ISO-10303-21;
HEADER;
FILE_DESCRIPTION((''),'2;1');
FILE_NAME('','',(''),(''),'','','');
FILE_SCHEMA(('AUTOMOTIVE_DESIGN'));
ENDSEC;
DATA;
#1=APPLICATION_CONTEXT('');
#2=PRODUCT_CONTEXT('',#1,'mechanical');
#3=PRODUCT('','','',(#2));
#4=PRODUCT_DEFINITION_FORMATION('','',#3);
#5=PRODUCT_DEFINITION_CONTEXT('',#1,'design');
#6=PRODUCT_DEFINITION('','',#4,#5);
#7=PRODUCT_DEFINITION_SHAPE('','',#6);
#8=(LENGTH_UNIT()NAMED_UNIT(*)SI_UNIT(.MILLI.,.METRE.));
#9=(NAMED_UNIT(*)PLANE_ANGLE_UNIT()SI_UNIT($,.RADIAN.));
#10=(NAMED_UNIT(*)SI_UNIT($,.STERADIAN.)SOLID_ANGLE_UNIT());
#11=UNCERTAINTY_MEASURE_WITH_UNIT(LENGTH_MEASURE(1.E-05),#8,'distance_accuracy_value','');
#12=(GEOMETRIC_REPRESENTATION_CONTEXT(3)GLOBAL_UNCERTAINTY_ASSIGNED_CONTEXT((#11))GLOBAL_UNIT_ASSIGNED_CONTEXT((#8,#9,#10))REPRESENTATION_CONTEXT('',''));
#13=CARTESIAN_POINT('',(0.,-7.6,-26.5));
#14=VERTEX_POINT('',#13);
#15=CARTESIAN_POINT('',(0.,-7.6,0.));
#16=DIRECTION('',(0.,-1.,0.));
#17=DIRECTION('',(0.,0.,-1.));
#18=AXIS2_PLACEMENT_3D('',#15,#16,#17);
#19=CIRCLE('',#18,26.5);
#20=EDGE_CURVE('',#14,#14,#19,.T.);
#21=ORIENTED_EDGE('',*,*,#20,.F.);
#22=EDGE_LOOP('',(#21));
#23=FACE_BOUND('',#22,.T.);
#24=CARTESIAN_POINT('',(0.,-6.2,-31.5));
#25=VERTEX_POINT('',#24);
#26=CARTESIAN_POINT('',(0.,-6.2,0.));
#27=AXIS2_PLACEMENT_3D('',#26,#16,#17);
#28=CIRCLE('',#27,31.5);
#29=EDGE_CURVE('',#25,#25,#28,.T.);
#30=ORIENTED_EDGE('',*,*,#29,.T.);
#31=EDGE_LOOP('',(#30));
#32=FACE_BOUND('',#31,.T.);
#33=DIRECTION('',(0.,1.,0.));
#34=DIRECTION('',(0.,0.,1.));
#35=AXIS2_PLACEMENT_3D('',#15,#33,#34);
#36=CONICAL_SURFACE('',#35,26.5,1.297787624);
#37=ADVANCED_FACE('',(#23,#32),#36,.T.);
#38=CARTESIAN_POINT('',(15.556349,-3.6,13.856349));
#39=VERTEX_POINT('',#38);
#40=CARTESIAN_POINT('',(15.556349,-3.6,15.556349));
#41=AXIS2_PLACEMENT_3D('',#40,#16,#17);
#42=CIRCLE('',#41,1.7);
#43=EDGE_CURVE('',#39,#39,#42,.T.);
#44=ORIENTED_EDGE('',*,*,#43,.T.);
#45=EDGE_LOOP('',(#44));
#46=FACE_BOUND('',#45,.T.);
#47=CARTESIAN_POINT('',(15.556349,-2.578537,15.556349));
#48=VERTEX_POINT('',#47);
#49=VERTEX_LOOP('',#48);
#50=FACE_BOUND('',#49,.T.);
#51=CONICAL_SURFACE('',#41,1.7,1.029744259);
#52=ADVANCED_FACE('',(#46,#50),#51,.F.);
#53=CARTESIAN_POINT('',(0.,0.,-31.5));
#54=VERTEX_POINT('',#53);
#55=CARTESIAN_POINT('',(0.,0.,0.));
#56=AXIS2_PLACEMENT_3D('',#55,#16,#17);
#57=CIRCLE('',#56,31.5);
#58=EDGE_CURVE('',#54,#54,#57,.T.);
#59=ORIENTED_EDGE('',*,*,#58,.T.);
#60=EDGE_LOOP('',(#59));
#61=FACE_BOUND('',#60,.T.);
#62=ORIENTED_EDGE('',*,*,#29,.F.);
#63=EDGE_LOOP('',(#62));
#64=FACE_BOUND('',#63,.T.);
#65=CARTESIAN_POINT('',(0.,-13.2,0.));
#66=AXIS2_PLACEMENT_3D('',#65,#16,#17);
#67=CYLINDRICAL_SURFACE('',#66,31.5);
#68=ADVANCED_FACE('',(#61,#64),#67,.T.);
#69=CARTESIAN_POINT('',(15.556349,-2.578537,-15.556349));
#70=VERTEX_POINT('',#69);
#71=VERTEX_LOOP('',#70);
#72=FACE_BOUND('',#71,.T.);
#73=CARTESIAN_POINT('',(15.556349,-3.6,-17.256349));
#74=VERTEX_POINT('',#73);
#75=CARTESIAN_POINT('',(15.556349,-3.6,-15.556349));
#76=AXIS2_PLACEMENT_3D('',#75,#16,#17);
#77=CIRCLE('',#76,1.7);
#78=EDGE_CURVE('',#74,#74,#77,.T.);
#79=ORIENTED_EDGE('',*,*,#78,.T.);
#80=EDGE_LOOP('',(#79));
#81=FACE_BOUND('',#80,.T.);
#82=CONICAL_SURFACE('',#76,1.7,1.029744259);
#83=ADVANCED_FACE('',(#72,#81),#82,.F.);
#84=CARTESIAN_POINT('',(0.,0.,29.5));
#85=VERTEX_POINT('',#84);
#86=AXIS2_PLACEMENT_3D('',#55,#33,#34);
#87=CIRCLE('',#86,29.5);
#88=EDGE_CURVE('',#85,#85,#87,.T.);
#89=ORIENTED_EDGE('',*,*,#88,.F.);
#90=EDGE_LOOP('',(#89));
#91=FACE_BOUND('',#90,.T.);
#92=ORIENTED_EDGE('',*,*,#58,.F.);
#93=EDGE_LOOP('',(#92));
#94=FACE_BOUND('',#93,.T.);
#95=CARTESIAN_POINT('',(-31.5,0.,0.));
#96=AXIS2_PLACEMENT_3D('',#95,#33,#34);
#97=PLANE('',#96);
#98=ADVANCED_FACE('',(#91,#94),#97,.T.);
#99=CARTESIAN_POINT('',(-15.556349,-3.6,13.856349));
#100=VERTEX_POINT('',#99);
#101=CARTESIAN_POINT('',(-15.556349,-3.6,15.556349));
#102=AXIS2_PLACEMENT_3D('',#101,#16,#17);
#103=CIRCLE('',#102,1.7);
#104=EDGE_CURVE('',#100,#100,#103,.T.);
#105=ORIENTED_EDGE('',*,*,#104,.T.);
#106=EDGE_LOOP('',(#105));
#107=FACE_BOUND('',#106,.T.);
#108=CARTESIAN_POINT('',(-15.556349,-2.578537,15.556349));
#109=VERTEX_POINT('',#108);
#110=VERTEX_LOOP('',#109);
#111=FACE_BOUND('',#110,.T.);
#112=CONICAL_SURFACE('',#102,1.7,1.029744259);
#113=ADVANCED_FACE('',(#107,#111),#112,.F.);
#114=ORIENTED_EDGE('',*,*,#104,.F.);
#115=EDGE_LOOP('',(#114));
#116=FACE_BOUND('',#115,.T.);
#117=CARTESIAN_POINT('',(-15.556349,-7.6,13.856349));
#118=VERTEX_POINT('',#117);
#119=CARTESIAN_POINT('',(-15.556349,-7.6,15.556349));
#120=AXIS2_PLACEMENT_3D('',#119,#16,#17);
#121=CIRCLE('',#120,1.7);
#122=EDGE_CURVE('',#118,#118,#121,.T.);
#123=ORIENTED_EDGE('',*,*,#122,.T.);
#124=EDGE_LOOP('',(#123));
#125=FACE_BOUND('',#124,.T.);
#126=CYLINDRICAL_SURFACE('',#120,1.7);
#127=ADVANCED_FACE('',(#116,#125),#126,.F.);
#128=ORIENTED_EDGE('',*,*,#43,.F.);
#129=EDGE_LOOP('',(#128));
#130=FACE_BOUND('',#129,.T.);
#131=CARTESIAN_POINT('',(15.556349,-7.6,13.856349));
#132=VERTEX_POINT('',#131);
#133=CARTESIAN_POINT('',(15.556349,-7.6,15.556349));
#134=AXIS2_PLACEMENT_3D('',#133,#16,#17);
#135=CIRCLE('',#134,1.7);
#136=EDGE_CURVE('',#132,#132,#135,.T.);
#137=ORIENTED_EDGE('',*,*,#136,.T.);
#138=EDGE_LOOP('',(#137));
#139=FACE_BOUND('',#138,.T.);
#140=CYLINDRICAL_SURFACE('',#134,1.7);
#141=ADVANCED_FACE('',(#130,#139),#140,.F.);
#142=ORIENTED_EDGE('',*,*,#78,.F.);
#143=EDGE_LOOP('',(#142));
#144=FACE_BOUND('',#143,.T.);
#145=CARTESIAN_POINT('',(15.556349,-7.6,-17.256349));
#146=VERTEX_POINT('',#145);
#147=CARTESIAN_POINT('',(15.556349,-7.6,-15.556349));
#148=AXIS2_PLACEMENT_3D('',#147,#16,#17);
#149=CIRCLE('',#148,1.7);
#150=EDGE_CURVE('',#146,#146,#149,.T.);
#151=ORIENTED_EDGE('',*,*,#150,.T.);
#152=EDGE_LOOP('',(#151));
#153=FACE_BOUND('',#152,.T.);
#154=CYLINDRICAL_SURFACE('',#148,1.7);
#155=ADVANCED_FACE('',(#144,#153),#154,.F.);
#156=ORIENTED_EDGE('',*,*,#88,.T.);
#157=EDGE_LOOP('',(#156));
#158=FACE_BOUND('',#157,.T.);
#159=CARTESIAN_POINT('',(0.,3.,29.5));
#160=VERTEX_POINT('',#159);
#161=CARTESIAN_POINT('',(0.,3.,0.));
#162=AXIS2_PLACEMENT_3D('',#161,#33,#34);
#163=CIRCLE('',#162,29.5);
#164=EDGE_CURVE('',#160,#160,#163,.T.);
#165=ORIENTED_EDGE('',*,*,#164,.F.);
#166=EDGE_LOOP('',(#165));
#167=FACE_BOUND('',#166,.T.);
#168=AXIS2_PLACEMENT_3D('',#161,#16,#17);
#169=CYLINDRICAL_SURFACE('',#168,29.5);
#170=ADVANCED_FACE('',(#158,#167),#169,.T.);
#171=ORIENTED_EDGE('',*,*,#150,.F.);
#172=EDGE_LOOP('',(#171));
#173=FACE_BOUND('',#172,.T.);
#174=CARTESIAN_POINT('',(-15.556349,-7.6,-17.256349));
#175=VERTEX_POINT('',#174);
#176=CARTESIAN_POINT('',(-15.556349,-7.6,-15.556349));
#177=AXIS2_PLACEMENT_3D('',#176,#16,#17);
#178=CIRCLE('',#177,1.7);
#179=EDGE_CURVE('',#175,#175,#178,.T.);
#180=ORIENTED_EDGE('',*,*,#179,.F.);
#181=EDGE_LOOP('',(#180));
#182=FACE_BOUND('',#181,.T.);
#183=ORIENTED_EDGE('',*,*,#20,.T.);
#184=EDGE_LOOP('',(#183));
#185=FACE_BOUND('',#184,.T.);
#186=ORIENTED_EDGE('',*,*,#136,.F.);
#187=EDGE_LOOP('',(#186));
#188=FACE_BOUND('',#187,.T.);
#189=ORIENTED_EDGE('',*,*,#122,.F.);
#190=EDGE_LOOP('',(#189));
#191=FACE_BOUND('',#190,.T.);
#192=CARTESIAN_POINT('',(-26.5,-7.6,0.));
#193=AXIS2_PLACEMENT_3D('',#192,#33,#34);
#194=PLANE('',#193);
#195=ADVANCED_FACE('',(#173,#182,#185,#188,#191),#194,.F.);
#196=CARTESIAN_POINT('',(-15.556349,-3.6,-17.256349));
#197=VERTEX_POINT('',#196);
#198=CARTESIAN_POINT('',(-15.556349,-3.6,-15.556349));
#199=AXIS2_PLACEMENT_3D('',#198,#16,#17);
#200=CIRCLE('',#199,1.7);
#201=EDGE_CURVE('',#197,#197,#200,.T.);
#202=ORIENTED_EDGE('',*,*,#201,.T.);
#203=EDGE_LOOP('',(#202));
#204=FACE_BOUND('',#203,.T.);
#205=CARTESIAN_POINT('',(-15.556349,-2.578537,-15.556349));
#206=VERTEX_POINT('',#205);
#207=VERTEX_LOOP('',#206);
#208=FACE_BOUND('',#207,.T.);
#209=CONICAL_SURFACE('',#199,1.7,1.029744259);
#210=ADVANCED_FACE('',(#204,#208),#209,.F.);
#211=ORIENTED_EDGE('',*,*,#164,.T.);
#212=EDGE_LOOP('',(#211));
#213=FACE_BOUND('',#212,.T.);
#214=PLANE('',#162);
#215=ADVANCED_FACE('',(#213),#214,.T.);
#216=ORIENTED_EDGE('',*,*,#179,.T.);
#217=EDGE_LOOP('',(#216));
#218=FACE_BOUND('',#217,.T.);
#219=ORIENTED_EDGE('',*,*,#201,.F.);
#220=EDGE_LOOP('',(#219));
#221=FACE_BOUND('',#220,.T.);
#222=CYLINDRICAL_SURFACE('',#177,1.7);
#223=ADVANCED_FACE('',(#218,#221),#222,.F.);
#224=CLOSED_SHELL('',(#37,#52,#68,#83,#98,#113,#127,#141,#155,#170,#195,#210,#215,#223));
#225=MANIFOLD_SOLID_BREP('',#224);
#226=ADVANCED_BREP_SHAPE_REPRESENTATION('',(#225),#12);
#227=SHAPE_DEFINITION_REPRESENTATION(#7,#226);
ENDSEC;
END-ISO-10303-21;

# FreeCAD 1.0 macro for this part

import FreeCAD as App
import Part
import Sketcher
Q = App.Units.Quantity


def add_polygon(sketch, points):
    """Adds a closed chain of lines whose ends are joined by coincident constraints."""
    first, n = sketch.GeometryCount, len(points)
    for a, b in zip(points, points[1:] + points[:1]):
        sketch.addGeometry(Part.LineSegment(App.Vector(*a, 0), App.Vector(*b, 0)), False)
    for i in range(n):
        sketch.addConstraint(Sketcher.Constraint("Coincident", first + i, 2, first + (i + 1) % n, 1))

doc = App.newDocument("Part")
body = doc.addObject("PartDesign::Body", "Body")

# Sketch on XY plane
sketch1 = body.newObject("Sketcher::SketchObject", "Sketch")
sketch1.AttachmentSupport = (doc.getObject("XY_Plane"), [""])
sketch1.MapMode = "FlatFace"
add_polygon(sketch1, [(-31.5, -6.2), (-26.5, -7.6), (0, -7.6), (0, 0), (-31.5, 0)])  # lines 0-4
sketch1.addConstraint(Sketcher.Constraint("Horizontal", 1))
sketch1.addConstraint(Sketcher.Constraint("Vertical", 2))
sketch1.addConstraint(Sketcher.Constraint("Horizontal", 3))
sketch1.addConstraint(Sketcher.Constraint("Vertical", 4))
sketch1.addConstraint(Sketcher.Constraint("Coincident", 2, 2, -1, 1))
sketch1.addConstraint(Sketcher.Constraint("DistanceX", 1, 1, 1, 2, Q("26.5 mm")))
sketch1.addConstraint(Sketcher.Constraint("DistanceX", 3, 2, 3, 1, Q("31.5 mm")))
sketch1.addConstraint(Sketcher.Constraint("DistanceY", 2, 1, 2, 2, Q("7.6 mm")))
sketch1.addConstraint(Sketcher.Constraint("DistanceY", 4, 2, 4, 1, Q("6.2 mm")))
revolution = body.newObject("PartDesign::Revolution", "Revolution")
revolution.Profile = sketch1
revolution.ReferenceAxis = (sketch1, ["V_Axis"])
revolution.Angle = 360

# Sketch on XZ plane
sketch2 = body.newObject("Sketcher::SketchObject", "Sketch001")
sketch2.AttachmentSupport = (doc.getObject("XZ_Plane"), [""])
sketch2.MapMode = "FlatFace"
sketch2.AttachmentOffset = App.Placement(App.Vector(0, 0, 7.6), App.Rotation())
sketch2.addGeometry(Part.Circle(App.Vector(-15.556349, 15.556349, 0), App.Vector(0, 0, 1), 1.7), False)
sketch2.addGeometry(Part.Circle(App.Vector(-15.556349, -15.556349, 0), App.Vector(0, 0, 1), 1.7), False)
sketch2.addGeometry(Part.Circle(App.Vector(15.556349, -15.556349, 0), App.Vector(0, 0, 1), 1.7), False)
sketch2.addGeometry(Part.Circle(App.Vector(15.556349, 15.556349, 0), App.Vector(0, 0, 1), 1.7), False)
sketch2.addConstraint(Sketcher.Constraint("Equal", 0, 1))
sketch2.addConstraint(Sketcher.Constraint("Equal", 1, 2))
sketch2.addConstraint(Sketcher.Constraint("Equal", 2, 3))
sketch2.addConstraint(Sketcher.Constraint("Symmetric", 0, 3, 2, 3, -1, 1))
sketch2.addConstraint(Sketcher.Constraint("Symmetric", 1, 3, 3, 3, -1, 1))
sketch2.addConstraint(Sketcher.Constraint("Symmetric", 1, 3, 2, 3, -2))
sketch2.addConstraint(Sketcher.Constraint("Diameter", 0, Q("3.4 mm")))
sketch2.addConstraint(Sketcher.Constraint("DistanceY", 1, 3, 0, 3, Q("31.112698 mm")))
sketch2.addConstraint(Sketcher.Constraint("DistanceX", 1, 3, 2, 3, Q("31.112698 mm")))
doc.recompute()
hole = body.newObject("PartDesign::Hole", "Hole")
hole.Profile = sketch2
hole.ThreadType = "None"
hole.Diameter = 3.4
hole.DepthType = "Dimension"
hole.Depth = 4
hole.DrillPoint = "Angled"
hole.DrillPointAngle = 118

# Sketch on XZ plane
sketch3 = body.newObject("Sketcher::SketchObject", "Sketch002")
sketch3.AttachmentSupport = (doc.getObject("XZ_Plane"), [""])
sketch3.MapMode = "FlatFace"
sketch3.addGeometry(Part.Circle(App.Vector(0, 0, 0), App.Vector(0, 0, 1), 29.5), False)
sketch3.addConstraint(Sketcher.Constraint("Coincident", 0, 3, -1, 1))
sketch3.addConstraint(Sketcher.Constraint("Diameter", 0, Q("59 mm")))
pad1 = body.newObject("PartDesign::Pad", "Pad")
pad1.Profile = sketch3
pad1.Length = 3
pad1.Reversed = True

doc.recompute()
